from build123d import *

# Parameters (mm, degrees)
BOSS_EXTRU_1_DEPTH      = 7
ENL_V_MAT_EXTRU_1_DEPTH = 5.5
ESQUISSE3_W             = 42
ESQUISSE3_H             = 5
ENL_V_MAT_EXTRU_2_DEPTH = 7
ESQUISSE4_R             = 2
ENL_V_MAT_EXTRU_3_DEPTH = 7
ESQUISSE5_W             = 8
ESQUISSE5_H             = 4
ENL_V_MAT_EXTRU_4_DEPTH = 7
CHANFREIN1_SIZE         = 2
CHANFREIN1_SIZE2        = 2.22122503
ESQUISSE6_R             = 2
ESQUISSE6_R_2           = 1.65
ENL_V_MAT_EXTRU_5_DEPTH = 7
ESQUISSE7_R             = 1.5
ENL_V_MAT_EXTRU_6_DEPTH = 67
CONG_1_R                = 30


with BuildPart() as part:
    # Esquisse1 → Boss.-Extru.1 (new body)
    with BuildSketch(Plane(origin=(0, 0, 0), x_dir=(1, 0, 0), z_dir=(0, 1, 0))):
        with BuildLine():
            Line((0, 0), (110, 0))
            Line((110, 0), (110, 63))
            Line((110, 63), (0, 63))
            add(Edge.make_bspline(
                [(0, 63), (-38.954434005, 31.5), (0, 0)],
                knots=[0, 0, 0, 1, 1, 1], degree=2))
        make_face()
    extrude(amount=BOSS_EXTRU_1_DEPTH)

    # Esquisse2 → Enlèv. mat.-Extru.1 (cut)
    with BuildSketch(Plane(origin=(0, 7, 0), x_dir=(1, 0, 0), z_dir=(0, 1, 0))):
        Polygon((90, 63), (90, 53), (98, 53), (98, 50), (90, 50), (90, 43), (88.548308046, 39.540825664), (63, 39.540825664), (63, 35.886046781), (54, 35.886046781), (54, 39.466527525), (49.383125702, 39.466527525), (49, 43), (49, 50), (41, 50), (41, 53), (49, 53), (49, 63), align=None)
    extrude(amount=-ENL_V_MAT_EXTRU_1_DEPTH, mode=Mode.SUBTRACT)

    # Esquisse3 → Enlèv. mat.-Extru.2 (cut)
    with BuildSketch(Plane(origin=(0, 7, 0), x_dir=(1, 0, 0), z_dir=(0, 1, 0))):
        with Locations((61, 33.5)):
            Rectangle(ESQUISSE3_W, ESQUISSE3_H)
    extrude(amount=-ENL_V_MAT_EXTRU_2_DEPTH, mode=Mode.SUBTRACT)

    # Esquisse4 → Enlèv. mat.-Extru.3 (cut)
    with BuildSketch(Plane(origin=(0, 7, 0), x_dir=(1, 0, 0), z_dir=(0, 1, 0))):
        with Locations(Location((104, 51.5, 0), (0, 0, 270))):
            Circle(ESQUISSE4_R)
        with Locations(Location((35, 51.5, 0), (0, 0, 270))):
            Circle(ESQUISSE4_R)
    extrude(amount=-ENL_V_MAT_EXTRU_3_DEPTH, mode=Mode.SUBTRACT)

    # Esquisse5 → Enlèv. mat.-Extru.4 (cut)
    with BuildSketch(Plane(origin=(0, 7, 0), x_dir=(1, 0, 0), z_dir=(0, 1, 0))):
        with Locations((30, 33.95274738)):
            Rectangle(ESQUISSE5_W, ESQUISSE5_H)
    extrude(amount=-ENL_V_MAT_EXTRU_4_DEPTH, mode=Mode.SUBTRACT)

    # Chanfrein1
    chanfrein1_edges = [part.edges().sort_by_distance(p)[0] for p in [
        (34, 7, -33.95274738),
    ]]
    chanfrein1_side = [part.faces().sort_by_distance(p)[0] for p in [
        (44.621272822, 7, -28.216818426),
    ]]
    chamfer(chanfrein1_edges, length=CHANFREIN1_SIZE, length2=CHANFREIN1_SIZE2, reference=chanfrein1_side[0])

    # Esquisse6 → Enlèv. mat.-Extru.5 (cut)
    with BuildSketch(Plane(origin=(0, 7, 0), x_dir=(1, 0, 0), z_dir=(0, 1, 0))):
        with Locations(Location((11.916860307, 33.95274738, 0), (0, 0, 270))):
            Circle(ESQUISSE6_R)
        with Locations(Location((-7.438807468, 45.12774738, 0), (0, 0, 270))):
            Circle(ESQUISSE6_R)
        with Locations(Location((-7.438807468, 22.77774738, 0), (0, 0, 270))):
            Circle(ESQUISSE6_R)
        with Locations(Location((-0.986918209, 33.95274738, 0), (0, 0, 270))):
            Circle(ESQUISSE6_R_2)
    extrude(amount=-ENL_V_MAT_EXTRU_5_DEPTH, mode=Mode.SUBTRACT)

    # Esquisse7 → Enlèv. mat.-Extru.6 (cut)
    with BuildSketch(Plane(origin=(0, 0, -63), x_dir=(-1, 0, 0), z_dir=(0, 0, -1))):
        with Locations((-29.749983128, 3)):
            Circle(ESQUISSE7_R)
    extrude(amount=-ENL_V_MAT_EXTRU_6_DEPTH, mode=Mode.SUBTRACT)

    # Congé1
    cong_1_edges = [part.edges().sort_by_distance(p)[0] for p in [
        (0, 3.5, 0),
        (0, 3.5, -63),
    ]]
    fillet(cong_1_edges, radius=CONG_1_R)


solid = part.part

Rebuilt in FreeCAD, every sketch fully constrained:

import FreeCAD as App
import Part
import Sketcher
from FreeCAD import Vector


def edges_at(feature, points):
    """Names of the edges that pass closest to the given points."""
    edges = feature.Shape.Edges
    near = lambda p: min(range(len(edges)), key=lambda i: edges[i].distToShape(Part.Vertex(*p))[0])
    return sorted({f"Edge{near(p) + 1}" for p in points})


def add_polygon(sketch, points):
    """Adds a closed chain of lines whose ends are joined by coincident constraints."""
    first, n = sketch.GeometryCount, len(points)
    for a, b in zip(points, points[1:] + points[:1]):
        sketch.addGeometry(Part.LineSegment(App.Vector(*a, 0), App.Vector(*b, 0)), False)
    for i in range(n):
        sketch.addConstraint(Sketcher.Constraint("Coincident", first + i, 2, first + (i + 1) % n, 1))

doc = App.newDocument("Part")
params = doc.addObject("Spreadsheet::Sheet", "Params")
for row, (alias, value) in enumerate([
    ("sketch1_width", "110 mm"),
    ("pad1_length", "7 mm"),
    ("sketch2_width", "41 mm"),
    ("sketch2_width2", "8 mm"),
    ("sketch2_width3", "9 mm"),
    ("sketch2_height", "10 mm"),
    ("sketch2_height2", "3 mm"),
    ("pocket1_length", "5.5 mm"),
    ("sketch3_width", "42 mm"),
    ("sketch3_height", "5 mm"),
    ("pocket2_length", "7 mm"),
    ("sketch4_diameter", "4 mm"),
    ("pocket3_length", "7 mm"),
    ("sketch5_width", "8 mm"),
    ("sketch5_height", "4 mm"),
    ("pocket4_length", "7 mm"),
    ("chamfer_size", "2 mm"),
    ("chamfer_size2", "2.221225 mm"),
    ("sketch6_diameter", "4 mm"),
    ("sketch6_diameter2", "3.3 mm"),
    ("pocket5_length", "7 mm"),
    ("sketch7_diameter", "3 mm"),
    ("pocket6_length", "67 mm"),
    ("fillet_radius", "30 mm"),
], start=1):
    params.set(f"A{row}", alias)
    params.set(f"B{row}", "=" + value)
    params.setAlias(f"B{row}", alias)

body = doc.addObject("PartDesign::Body", "Body")

# Sketch on XZ plane
sketch1 = body.newObject("Sketcher::SketchObject", "Sketch")
sketch1.AttachmentSupport = (doc.getObject("XZ_Plane"), [""])
sketch1.MapMode = "FlatFace"
sketch1.addGeometry(Part.LineSegment(Vector(0, 0, 0), Vector(110, 0, 0)), False)
sketch1.addGeometry(Part.LineSegment(Vector(110, 0, 0), Vector(110, -63, 0)), False)
sketch1.addGeometry(Part.LineSegment(Vector(110, -63, 0), Vector(0, -63, 0)), False)
sketch1.addGeometry(Part.BSplineCurve([Vector(0, -63, 0), Vector(-38.954434, -31.5, 0), Vector(0, 0, 0)], [3, 3], [0, 1], False, 2, [1, 1, 1], False), False)
sketch1.addConstraint(Sketcher.Constraint("Block", 3))
sketch1.addConstraint(Sketcher.Constraint("Coincident", 0, 2, 1, 1))
sketch1.addConstraint(Sketcher.Constraint("Coincident", 1, 2, 2, 1))
sketch1.addConstraint(Sketcher.Constraint("Coincident", 2, 2, 3, 1))
sketch1.addConstraint(Sketcher.Constraint("Coincident", 3, 2, 0, 1))
sketch1.addConstraint(Sketcher.Constraint("Horizontal", 0))
sketch1.addConstraint(Sketcher.Constraint("Vertical", 1))
sketch1.addConstraint(Sketcher.Constraint("Horizontal", 2))
sketch1.addConstraint(Sketcher.Constraint("DistanceX", 0, 1, 0, 2, 110.0))
sketch1.setExpression("Constraints[8]", "Params.sketch1_width")
pad1 = body.newObject("PartDesign::Pad", "Pad")
pad1.Profile = sketch1
pad1.setExpression("Length", "Params.pad1_length")
pad1.Reversed = True

# Sketch on XZ plane
sketch2 = body.newObject("Sketcher::SketchObject", "Sketch001")
sketch2.AttachmentSupport = (doc.getObject("XZ_Plane"), [""])
sketch2.MapMode = "FlatFace"
sketch2.AttachmentOffset = App.Placement(Vector(0, 0, -7), App.Rotation())
add_polygon(sketch2, [(90, -53), (90, -63), (49, -63), (49, -53), (41, -53), (41, -50), (49, -50), (49, -43), (49.4, -39.5), (54, -39.5), (54, -35.9), (63, -35.9), (63, -39.5), (88.5, -39.5), (90, -43), (90, -50), (98, -50), (98, -53)])  # lines 0-17
sketch2.addConstraint(Sketcher.Constraint("Vertical", 0))
sketch2.addConstraint(Sketcher.Constraint("Horizontal", 1))
sketch2.addConstraint(Sketcher.Constraint("Vertical", 2))
sketch2.addConstraint(Sketcher.Constraint("Horizontal", 3))
sketch2.addConstraint(Sketcher.Constraint("Vertical", 4))
sketch2.addConstraint(Sketcher.Constraint("Horizontal", 5))
sketch2.addConstraint(Sketcher.Constraint("Vertical", 6))
sketch2.addConstraint(Sketcher.Constraint("Horizontal", 8))
sketch2.addConstraint(Sketcher.Constraint("Vertical", 9))
sketch2.addConstraint(Sketcher.Constraint("Horizontal", 10))
sketch2.addConstraint(Sketcher.Constraint("Vertical", 11))
sketch2.addConstraint(Sketcher.Constraint("Horizontal", 12))
sketch2.addConstraint(Sketcher.Constraint("Vertical", 14))
sketch2.addConstraint(Sketcher.Constraint("Horizontal", 15))
sketch2.addConstraint(Sketcher.Constraint("Vertical", 16))
sketch2.addConstraint(Sketcher.Constraint("Horizontal", 17))
sketch2.addConstraint(Sketcher.Constraint("Horizontal", 6, 2, 13, 2))
sketch2.addConstraint(Sketcher.Constraint("Horizontal", 5, 2, 14, 2))
sketch2.addConstraint(Sketcher.Constraint("Horizontal", 3, 2, 16, 2))
sketch2.addConstraint(Sketcher.Constraint("Vertical", 2, 2, 5, 2))
sketch2.addConstraint(Sketcher.Constraint("Vertical", 0, 2, 13, 2))
sketch2.addConstraint(Sketcher.Constraint("Equal", 5, 15))
sketch2.addConstraint(Sketcher.Constraint("DistanceX", 1, 2, 1, 1, 41.0))
sketch2.addConstraint(Sketcher.Constraint("DistanceX", 3, 2, 3, 1, 8.0))
sketch2.addConstraint(Sketcher.Constraint("DistanceX", 10, 1, 10, 2, 9.0))
sketch2.addConstraint(Sketcher.Constraint("DistanceY", 0, 2, 0, 1, 10.0))
sketch2.addConstraint(Sketcher.Constraint("DistanceY", 4, 1, 4, 2, 3.0))
sketch2.addConstraint(Sketcher.Constraint("DistanceY", 6, 1, 6, 2, 7.0))
sketch2.addConstraint(Sketcher.Constraint("DistanceX", -1, 1, 0, 2, 90.0))
sketch2.addConstraint(Sketcher.Constraint("DistanceY", 0, 2, -1, 1, 63.0))
sketch2.addConstraint(Sketcher.Constraint("DistanceX", -1, 1, 8, 2, 54.0))
sketch2.addConstraint(Sketcher.Constraint("DistanceX", 12, 1, 12, 2, 25.548308))
sketch2.addConstraint(Sketcher.Constraint("DistanceY", 9, 1, 9, 2, 3.580481))
sketch2.addConstraint(Sketcher.Constraint("DistanceY", 11, 2, 11, 1, 3.654779))
sketch2.addConstraint(Sketcher.Constraint("Distance", 13, 3.751439))
sketch2.addConstraint(Sketcher.Constraint("DistanceX", 8, 1, 8, 2, 4.616874))
sketch2.setExpression("Constraints[40]", "Params.sketch2_width")
sketch2.setExpression("Constraints[41]", "Params.sketch2_width2")
sketch2.setExpression("Constraints[42]", "Params.sketch2_width3")
sketch2.setExpression("Constraints[43]", "Params.sketch2_height")
sketch2.setExpression("Constraints[44]", "Params.sketch2_height2")
pocket1 = body.newObject("PartDesign::Pocket", "Pocket")
pocket1.Profile = sketch2
pocket1.setExpression("Length", "Params.pocket1_length")
pocket1.Reversed = True

# Sketch on XZ plane
sketch3 = body.newObject("Sketcher::SketchObject", "Sketch002")
sketch3.AttachmentSupport = (doc.getObject("XZ_Plane"), [""])
sketch3.MapMode = "FlatFace"
sketch3.AttachmentOffset = App.Placement(Vector(0, 0, -7), App.Rotation())
add_polygon(sketch3, [(40, -36), (40, -31), (82, -31), (82, -36)])  # lines 0-3
sketch3.addConstraint(Sketcher.Constraint("Vertical", 0))
sketch3.addConstraint(Sketcher.Constraint("Horizontal", 1))
sketch3.addConstraint(Sketcher.Constraint("Vertical", 2))
sketch3.addConstraint(Sketcher.Constraint("Horizontal", 3))
sketch3.addConstraint(Sketcher.Constraint("DistanceX", 1, 1, 1, 2, 42.0))
sketch3.addConstraint(Sketcher.Constraint("DistanceY", 0, 1, 0, 2, 5.0))
sketch3.addConstraint(Sketcher.Constraint("DistanceX", -1, 1, 0, 2, 40.0))
sketch3.addConstraint(Sketcher.Constraint("DistanceY", 0, 2, -1, 1, 31.0))
sketch3.setExpression("Constraints[8]", "Params.sketch3_width")
sketch3.setExpression("Constraints[9]", "Params.sketch3_height")
pocket2 = body.newObject("PartDesign::Pocket", "Pocket001")
pocket2.Profile = sketch3
pocket2.setExpression("Length", "Params.pocket2_length")
pocket2.Reversed = True

# Sketch on XZ plane
sketch4 = body.newObject("Sketcher::SketchObject", "Sketch003")
sketch4.AttachmentSupport = (doc.getObject("XZ_Plane"), [""])
sketch4.MapMode = "FlatFace"
sketch4.AttachmentOffset = App.Placement(Vector(0, 0, -7), App.Rotation())
sketch4.addGeometry(Part.Circle(Vector(104, -51.5, 0), Vector(0, 0, 1), 2), False)
sketch4.addGeometry(Part.Circle(Vector(35, -51.5, 0), Vector(0, 0, 1), 2), False)
sketch4.addConstraint(Sketcher.Constraint("Equal", 0, 1))
sketch4.addConstraint(Sketcher.Constraint("Horizontal", 0, 3, 1, 3))
sketch4.addConstraint(Sketcher.Constraint("Diameter", 0, 4.0))
sketch4.addConstraint(Sketcher.Constraint("DistanceX", -1, 1, 0, 3, 104.0))
sketch4.addConstraint(Sketcher.Constraint("DistanceX", -1, 1, 1, 3, 35.0))
sketch4.addConstraint(Sketcher.Constraint("DistanceY", 0, 3, -1, 1, 51.5))
sketch4.setExpression("Constraints[2]", "Params.sketch4_diameter")
pocket3 = body.newObject("PartDesign::Pocket", "Pocket002")
pocket3.Profile = sketch4
pocket3.setExpression("Length", "Params.pocket3_length")
pocket3.Reversed = True

# Sketch on XZ plane
sketch5 = body.newObject("Sketcher::SketchObject", "Sketch004")
sketch5.AttachmentSupport = (doc.getObject("XZ_Plane"), [""])
sketch5.MapMode = "FlatFace"
sketch5.AttachmentOffset = App.Placement(Vector(0, 0, -7), App.Rotation())
add_polygon(sketch5, [(26, -36), (26, -32), (34, -32), (34, -36)])  # lines 0-3
sketch5.addConstraint(Sketcher.Constraint("Vertical", 0))
sketch5.addConstraint(Sketcher.Constraint("Horizontal", 1))
sketch5.addConstraint(Sketcher.Constraint("Vertical", 2))
sketch5.addConstraint(Sketcher.Constraint("Horizontal", 3))
sketch5.addConstraint(Sketcher.Constraint("DistanceX", 1, 1, 1, 2, 8.0))
sketch5.addConstraint(Sketcher.Constraint("DistanceY", 0, 1, 0, 2, 4.0))
sketch5.addConstraint(Sketcher.Constraint("DistanceX", -1, 1, 0, 2, 26.0))
sketch5.addConstraint(Sketcher.Constraint("DistanceY", 0, 2, -1, 1, 31.952747))
sketch5.setExpression("Constraints[8]", "Params.sketch5_width")
sketch5.setExpression("Constraints[9]", "Params.sketch5_height")
pocket4 = body.newObject("PartDesign::Pocket", "Pocket003")
pocket4.Profile = sketch5
pocket4.setExpression("Length", "Params.pocket4_length")
pocket4.Reversed = True
doc.recompute()

chamfer = body.newObject("PartDesign::Chamfer", "Chamfer")
chamfer.Base = (pocket4, edges_at(pocket4, [(34, 7, -33.953)]))
chamfer.ChamferType = "Two distances"
chamfer.setExpression("Size", "Params.chamfer_size")
chamfer.setExpression("Size2", "Params.chamfer_size2")

# Sketch on XZ plane
sketch6 = body.newObject("Sketcher::SketchObject", "Sketch005")
sketch6.AttachmentSupport = (doc.getObject("XZ_Plane"), [""])
sketch6.MapMode = "FlatFace"
sketch6.AttachmentOffset = App.Placement(Vector(0, 0, -7), App.Rotation())
sketch6.addGeometry(Part.Circle(Vector(11.9, -34, 0), Vector(0, 0, 1), 2), False)
sketch6.addGeometry(Part.Circle(Vector(-7.4, -45.1, 0), Vector(0, 0, 1), 2), False)
sketch6.addGeometry(Part.Circle(Vector(-7.4, -22.8, 0), Vector(0, 0, 1), 2), False)
sketch6.addGeometry(Part.Circle(Vector(-1, -34, 0), Vector(0, 0, 1), 1.6), False)
sketch6.addConstraint(Sketcher.Constraint("Equal", 0, 1))
sketch6.addConstraint(Sketcher.Constraint("Equal", 1, 2))
sketch6.addConstraint(Sketcher.Constraint("Horizontal", 0, 3, 3, 3))
sketch6.addConstraint(Sketcher.Constraint("Vertical", 1, 3, 2, 3))
sketch6.addConstraint(Sketcher.Constraint("Diameter", 0, 4.0))
sketch6.addConstraint(Sketcher.Constraint("Diameter", 3, 3.3))
sketch6.addConstraint(Sketcher.Constraint("DistanceY", 1, 3, 2, 3, 22.35))
sketch6.addConstraint(Sketcher.Constraint("DistanceY", 1, 3, 0, 3, 11.175))
sketch6.addConstraint(Sketcher.Constraint("DistanceX", -1, 1, 0, 3, 11.91686))
sketch6.addConstraint(Sketcher.Constraint("DistanceX", 3, 3, -1, 1, 0.986918))
sketch6.addConstraint(Sketcher.Constraint("DistanceX", 2, 3, 3, 3, 6.451889))
sketch6.addConstraint(Sketcher.Constraint("DistanceY", 0, 3, -1, 1, 33.952747))
sketch6.setExpression("Constraints[4]", "Params.sketch6_diameter")
sketch6.setExpression("Constraints[5]", "Params.sketch6_diameter2")
pocket5 = body.newObject("PartDesign::Pocket", "Pocket004")
pocket5.Profile = sketch6
pocket5.setExpression("Length", "Params.pocket5_length")
pocket5.Reversed = True

# Sketch on XY plane
sketch7 = body.newObject("Sketcher::SketchObject", "Sketch006")
sketch7.AttachmentSupport = (doc.getObject("XY_Plane"), [""])
sketch7.MapMode = "FlatFace"
sketch7.AttachmentOffset = App.Placement(Vector(0, 0, -63), App.Rotation())
sketch7.addGeometry(Part.Circle(Vector(29.7, 3, 0), Vector(0, 0, 1), 1.5), False)
sketch7.addConstraint(Sketcher.Constraint("Diameter", 0, 3.0))
sketch7.addConstraint(Sketcher.Constraint("DistanceY", -1, 1, 0, 3, 3.0))
sketch7.addConstraint(Sketcher.Constraint("DistanceX", -1, 1, 0, 3, 29.749983))
sketch7.setExpression("Constraints[0]", "Params.sketch7_diameter")
pocket6 = body.newObject("PartDesign::Pocket", "Pocket005")
pocket6.Profile = sketch7
pocket6.setExpression("Length", "Params.pocket6_length")
pocket6.Reversed = True
doc.recompute()

fillet = body.newObject("PartDesign::Fillet", "Fillet")
fillet.Base = (pocket6, edges_at(pocket6, [(0, 3.5, 0), (0, 3.5, -63)]))
fillet.setExpression("Radius", "Params.fillet_radius")

doc.recompute()
